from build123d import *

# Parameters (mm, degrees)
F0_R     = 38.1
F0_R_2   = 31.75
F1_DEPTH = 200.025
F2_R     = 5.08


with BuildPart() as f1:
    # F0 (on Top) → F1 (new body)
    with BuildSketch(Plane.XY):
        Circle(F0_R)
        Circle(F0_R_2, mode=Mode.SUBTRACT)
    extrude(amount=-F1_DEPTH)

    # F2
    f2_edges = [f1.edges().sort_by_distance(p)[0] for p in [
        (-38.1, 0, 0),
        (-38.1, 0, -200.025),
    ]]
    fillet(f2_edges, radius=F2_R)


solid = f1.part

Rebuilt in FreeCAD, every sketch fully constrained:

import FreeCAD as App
import Part
import Sketcher
Q = App.Units.Quantity


def edges_at(feature, points):
    """Names of the edges that pass closest to the given points."""
    edges = feature.Shape.Edges
    near = lambda p: min(range(len(edges)), key=lambda i: edges[i].distToShape(Part.Vertex(*p))[0])
    return sorted({f"Edge{near(p) + 1}" for p in points})

doc = App.newDocument("Part")
body = doc.addObject("PartDesign::Body", "Body")

# Sketch on XY plane
sketch1 = doc.addObject("Sketcher::SketchObject", "Sketch")
body.addObject(sketch1)
sketch1.AttachmentSupport = (doc.XY_Plane, [""])
sketch1.MapMode = "FlatFace"
sketch1.addGeometry([
    Part.Circle(App.Vector(0, 0, 0), App.Vector(0, 0, 1), 38),
    Part.Circle(App.Vector(0, 0, 0), App.Vector(0, 0, 1), 32),
], False)
sketch1.addConstraint([
    Sketcher.Constraint("Coincident", 0, 3, -1, 1),
    Sketcher.Constraint("Coincident", 1, 3, -1, 1),
    Sketcher.Constraint("Diameter", 0, Q("3 in")),
    Sketcher.Constraint("Diameter", 1, Q("2.5 in")),
])
pad1 = doc.addObject("PartDesign::Pad", "Pad")
body.addObject(pad1)
pad1.Profile = sketch1
pad1.Length = Q("7.875 in")
pad1.Reversed = True
doc.recompute()

fillet = doc.addObject("PartDesign::Fillet", "Fillet")
body.addObject(fillet)
fillet.Base = (pad1, edges_at(pad1, [(-38.1, 0, 0), (-38.1, 0, -200.025)]))
fillet.Radius = Q("0.2 in")

doc.recompute()
